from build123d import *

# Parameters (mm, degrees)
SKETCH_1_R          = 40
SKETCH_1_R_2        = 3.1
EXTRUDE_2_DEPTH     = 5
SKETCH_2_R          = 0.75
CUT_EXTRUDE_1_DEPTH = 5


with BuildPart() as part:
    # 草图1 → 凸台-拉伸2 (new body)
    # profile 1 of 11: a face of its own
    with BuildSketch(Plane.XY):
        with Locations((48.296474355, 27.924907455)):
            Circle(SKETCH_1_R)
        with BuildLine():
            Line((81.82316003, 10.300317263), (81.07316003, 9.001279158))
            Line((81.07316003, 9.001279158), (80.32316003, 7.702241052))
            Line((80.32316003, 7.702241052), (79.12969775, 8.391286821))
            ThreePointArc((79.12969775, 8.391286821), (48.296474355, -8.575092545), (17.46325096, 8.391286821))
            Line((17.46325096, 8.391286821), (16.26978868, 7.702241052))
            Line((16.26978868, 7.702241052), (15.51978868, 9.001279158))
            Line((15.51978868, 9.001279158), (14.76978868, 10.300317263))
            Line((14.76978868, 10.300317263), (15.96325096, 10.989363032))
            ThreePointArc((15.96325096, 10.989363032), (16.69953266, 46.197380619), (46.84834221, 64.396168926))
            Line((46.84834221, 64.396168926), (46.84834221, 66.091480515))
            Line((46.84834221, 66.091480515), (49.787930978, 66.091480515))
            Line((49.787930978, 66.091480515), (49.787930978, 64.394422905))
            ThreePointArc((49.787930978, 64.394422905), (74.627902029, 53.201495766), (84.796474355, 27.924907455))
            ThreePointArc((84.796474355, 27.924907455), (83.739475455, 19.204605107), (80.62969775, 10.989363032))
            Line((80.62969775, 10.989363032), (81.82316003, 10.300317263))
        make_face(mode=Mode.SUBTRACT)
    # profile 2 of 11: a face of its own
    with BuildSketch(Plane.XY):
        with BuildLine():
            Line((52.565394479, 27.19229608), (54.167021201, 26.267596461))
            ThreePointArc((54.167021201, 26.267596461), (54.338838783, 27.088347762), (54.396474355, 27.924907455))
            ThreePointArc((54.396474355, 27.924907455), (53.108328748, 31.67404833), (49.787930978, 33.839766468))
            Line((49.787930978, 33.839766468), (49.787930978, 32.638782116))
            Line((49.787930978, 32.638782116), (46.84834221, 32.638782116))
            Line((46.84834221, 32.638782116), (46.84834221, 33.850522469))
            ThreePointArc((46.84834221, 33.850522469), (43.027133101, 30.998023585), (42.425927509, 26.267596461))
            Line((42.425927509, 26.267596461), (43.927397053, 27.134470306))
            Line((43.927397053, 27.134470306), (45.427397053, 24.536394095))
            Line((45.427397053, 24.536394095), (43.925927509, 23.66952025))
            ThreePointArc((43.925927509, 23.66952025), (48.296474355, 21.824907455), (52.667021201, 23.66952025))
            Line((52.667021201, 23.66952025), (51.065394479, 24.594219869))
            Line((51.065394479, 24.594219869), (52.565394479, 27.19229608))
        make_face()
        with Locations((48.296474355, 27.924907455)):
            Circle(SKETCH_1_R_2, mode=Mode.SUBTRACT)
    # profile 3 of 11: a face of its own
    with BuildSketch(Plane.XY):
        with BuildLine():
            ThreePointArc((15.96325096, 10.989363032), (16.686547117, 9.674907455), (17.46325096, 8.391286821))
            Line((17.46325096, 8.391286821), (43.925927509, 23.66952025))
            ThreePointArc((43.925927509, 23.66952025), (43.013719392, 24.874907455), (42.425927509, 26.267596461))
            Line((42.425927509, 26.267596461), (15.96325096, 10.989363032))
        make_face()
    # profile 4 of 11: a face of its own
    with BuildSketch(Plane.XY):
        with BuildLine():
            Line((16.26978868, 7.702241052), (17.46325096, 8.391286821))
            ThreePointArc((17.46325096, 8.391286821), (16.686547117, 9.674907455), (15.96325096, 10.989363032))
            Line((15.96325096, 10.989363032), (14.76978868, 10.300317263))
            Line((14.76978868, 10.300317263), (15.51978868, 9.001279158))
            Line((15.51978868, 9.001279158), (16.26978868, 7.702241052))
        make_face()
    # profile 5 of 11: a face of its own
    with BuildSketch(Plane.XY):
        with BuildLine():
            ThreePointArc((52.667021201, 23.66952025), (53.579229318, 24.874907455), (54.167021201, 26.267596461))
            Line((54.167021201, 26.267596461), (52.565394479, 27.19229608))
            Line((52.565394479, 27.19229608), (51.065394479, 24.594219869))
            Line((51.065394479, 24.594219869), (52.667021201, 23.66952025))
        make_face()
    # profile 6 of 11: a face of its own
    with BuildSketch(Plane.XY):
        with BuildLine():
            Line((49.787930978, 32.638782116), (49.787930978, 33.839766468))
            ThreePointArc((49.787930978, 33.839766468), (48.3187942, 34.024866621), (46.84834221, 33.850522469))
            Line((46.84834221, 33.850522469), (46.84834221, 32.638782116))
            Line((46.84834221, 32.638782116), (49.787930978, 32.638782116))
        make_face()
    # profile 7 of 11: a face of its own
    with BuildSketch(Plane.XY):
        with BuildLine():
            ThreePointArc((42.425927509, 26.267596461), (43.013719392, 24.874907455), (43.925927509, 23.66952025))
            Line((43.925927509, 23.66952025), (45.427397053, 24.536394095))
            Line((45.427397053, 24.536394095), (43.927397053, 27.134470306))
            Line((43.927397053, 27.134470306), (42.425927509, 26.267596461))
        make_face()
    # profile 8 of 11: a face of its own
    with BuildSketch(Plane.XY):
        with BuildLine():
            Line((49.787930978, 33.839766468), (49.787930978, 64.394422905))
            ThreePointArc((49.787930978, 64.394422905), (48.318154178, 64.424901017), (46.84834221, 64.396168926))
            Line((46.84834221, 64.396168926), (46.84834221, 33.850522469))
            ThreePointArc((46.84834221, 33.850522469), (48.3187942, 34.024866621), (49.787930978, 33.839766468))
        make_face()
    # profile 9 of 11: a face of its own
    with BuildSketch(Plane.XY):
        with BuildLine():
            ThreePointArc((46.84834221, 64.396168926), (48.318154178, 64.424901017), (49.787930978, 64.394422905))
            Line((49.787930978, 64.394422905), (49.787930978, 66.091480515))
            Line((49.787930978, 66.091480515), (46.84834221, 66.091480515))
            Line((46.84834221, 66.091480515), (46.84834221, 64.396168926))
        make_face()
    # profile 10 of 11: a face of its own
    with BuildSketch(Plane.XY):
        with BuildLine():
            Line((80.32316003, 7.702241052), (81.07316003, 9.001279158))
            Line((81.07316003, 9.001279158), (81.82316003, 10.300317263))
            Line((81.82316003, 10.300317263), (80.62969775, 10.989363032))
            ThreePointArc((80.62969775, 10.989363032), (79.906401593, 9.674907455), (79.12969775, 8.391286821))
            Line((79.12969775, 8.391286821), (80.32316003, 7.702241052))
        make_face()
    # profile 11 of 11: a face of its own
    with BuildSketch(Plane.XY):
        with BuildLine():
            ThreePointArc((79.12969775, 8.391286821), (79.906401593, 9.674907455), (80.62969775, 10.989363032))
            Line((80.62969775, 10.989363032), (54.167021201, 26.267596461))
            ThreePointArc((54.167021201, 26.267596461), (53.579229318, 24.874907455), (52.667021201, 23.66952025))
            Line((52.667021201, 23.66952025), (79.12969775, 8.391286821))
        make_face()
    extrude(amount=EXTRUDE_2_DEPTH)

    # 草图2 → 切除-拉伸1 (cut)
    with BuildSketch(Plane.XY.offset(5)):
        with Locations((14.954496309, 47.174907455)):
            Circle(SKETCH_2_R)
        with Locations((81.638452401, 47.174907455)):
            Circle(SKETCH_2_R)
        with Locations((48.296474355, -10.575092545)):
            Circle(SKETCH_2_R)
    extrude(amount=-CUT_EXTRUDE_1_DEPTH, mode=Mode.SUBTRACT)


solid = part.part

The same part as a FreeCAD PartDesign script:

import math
import FreeCAD as App
import Part
import Sketcher
from FreeCAD import Vector
Q = App.Units.Quantity

doc = App.newDocument("Part")
body = doc.addObject("PartDesign::Body", "Body")

# Sketch on XY plane
sketch1 = body.newObject("Sketcher::SketchObject", "Sketch")
sketch1.AttachmentSupport = (doc.getObject("XY_Plane"), [""])
sketch1.MapMode = "FlatFace"
sketch1.addGeometry(Part.Circle(Vector(48.3, 27.9, 0), Vector(0, 0, 1), 40), False)
sketch1.addGeometry(Part.ArcOfCircle(Part.Circle(Vector(48.3, 27.9, 0), Vector(0, 0, 1), 36.5), math.radians(-28), math.radians(0)), False)
sketch1.addGeometry(Part.LineSegment(Vector(80.6, 11, 0), Vector(54.2, 26.3, 0)), False)
sketch1.addGeometry(Part.ArcOfCircle(Part.Circle(Vector(48.3, 27.9, 0), Vector(0, 0, 1), 6.1), math.radians(-15.76), math.radians(0)), False)
sketch1.addGeometry(Part.ArcOfCircle(Part.Circle(Vector(48.3, 27.9, 0), Vector(0, 0, 1), 6.1), math.radians(0), math.radians(76)), False)
sketch1.addGeometry(Part.LineSegment(Vector(49.8, 33.8, 0), Vector(49.8, 64.4, 0)), False)
sketch1.addGeometry(Part.ArcOfCircle(Part.Circle(Vector(48.3, 27.9, 0), Vector(0, 0, 1), 36.5), math.radians(0), math.radians(88)), False)
sketch1.addGeometry(Part.ArcOfCircle(Part.Circle(Vector(48.3, 27.9, 0), Vector(0, 0, 1), 36.5), math.radians(92), math.radians(208)), False)
sketch1.addGeometry(Part.LineSegment(Vector(46.8, 64.4, 0), Vector(46.8, 33.9, 0)), False)
sketch1.addGeometry(Part.ArcOfCircle(Part.Circle(Vector(48.3, 27.9, 0), Vector(0, 0, 1), 6.1), math.radians(104), math.radians(196)), False)
sketch1.addGeometry(Part.LineSegment(Vector(42.4, 26.3, 0), Vector(16, 11, 0)), False)
sketch1.addGeometry(Part.ArcOfCircle(Part.Circle(Vector(48.3, 27.9, 0), Vector(0, 0, 1), 36.5), math.radians(-148), math.radians(-32)), False)
sketch1.addGeometry(Part.LineSegment(Vector(17.5, 8.4, 0), Vector(43.9, 23.7, 0)), False)
sketch1.addGeometry(Part.ArcOfCircle(Part.Circle(Vector(48.3, 27.9, 0), Vector(0, 0, 1), 6.1), math.radians(-136), math.radians(-44)), False)
sketch1.addGeometry(Part.LineSegment(Vector(52.7, 23.7, 0), Vector(79.1, 8.4, 0)), False)
sketch1.addGeometry(Part.Circle(Vector(48.3, 27.9, 0), Vector(0, 0, 1), 3.1), False)
sketch1.addConstraint(Sketcher.Constraint("Coincident", 1, 1, 2, 1))
sketch1.addConstraint(Sketcher.Constraint("Coincident", 2, 2, 3, 1))
sketch1.addConstraint(Sketcher.Constraint("Tangent", 3, 2, 4, 1))
sketch1.addConstraint(Sketcher.Constraint("Coincident", 4, 2, 5, 1))
sketch1.addConstraint(Sketcher.Constraint("Coincident", 5, 2, 6, 2))
sketch1.addConstraint(Sketcher.Constraint("Tangent", 6, 1, 1, 2))
sketch1.addConstraint(Sketcher.Constraint("Coincident", 7, 1, 8, 1))
sketch1.addConstraint(Sketcher.Constraint("Coincident", 8, 2, 9, 1))
sketch1.addConstraint(Sketcher.Constraint("Coincident", 9, 2, 10, 1))
sketch1.addConstraint(Sketcher.Constraint("Coincident", 10, 2, 7, 2))
sketch1.addConstraint(Sketcher.Constraint("Coincident", 11, 1, 12, 1))
sketch1.addConstraint(Sketcher.Constraint("Coincident", 12, 2, 13, 1))
sketch1.addConstraint(Sketcher.Constraint("Coincident", 13, 2, 14, 1))
sketch1.addConstraint(Sketcher.Constraint("Coincident", 14, 2, 11, 2))
sketch1.addConstraint(Sketcher.Constraint("Vertical", 5))
sketch1.addConstraint(Sketcher.Constraint("Vertical", 8))
sketch1.addConstraint(Sketcher.Constraint("Coincident", 1, 3, 0, 3))
sketch1.addConstraint(Sketcher.Constraint("Coincident", 3, 3, 0, 3))
sketch1.addConstraint(Sketcher.Constraint("Coincident", 7, 3, 0, 3))
sketch1.addConstraint(Sketcher.Constraint("Coincident", 9, 3, 0, 3))
sketch1.addConstraint(Sketcher.Constraint("Coincident", 11, 3, 0, 3))
sketch1.addConstraint(Sketcher.Constraint("Coincident", 13, 3, 0, 3))
sketch1.addConstraint(Sketcher.Constraint("Coincident", 15, 3, 0, 3))
sketch1.addConstraint(Sketcher.Constraint("Equal", 3, 4))
sketch1.addConstraint(Sketcher.Constraint("Equal", 1, 6))
sketch1.addConstraint(Sketcher.Constraint("Equal", 6, 7))
sketch1.addConstraint(Sketcher.Constraint("Equal", 4, 9))
sketch1.addConstraint(Sketcher.Constraint("Equal", 7, 11))
sketch1.addConstraint(Sketcher.Constraint("Equal", 9, 13))
sketch1.addConstraint(Sketcher.Constraint("Parallel", 10, 12))
sketch1.addConstraint(Sketcher.Constraint("Parallel", 2, 14))
sketch1.addConstraint(Sketcher.Constraint("Horizontal", 15, 3, 3, 2))
sketch1.addConstraint(Sketcher.Constraint("Horizontal", 3, 2, 6, 1))
sketch1.addConstraint(Sketcher.Constraint("Horizontal", 2, 2, 9, 2))
sketch1.addConstraint(Sketcher.Constraint("Horizontal", 1, 1, 10, 2))
sketch1.addConstraint(Sketcher.Constraint("Horizontal", 12, 2, 13, 2))
sketch1.addConstraint(Sketcher.Constraint("Equal", 10, 12))
sketch1.addConstraint(Sketcher.Constraint("Diameter", 0, 80.0))
sketch1.addConstraint(Sketcher.Constraint("Diameter", 15, 6.2))
sketch1.addConstraint(Sketcher.Constraint("Radius", 1, 36.5))
sketch1.addConstraint(Sketcher.Constraint("Radius", 3, 6.1))
sketch1.addConstraint(Sketcher.Constraint("Angle", 2, Q("150 deg")))
sketch1.addConstraint(Sketcher.Constraint("DistanceX", 10, 2, 11, 1, 1.5))
sketch1.addConstraint(Sketcher.Constraint("DistanceY", 5, 1, 5, 2, 30.554656))
sketch1.addConstraint(Sketcher.Constraint("DistanceY", 8, 2, 8, 1, 30.545646))
sketch1.addConstraint(Sketcher.Constraint("DistanceX", -1, 1, 2, 2, 54.167021))
sketch1.addConstraint(Sketcher.Constraint("DistanceY", -1, 1, 7, 1, 64.396169))
pad1 = body.newObject("PartDesign::Pad", "Pad")
pad1.Profile = sketch1
pad1.Length = 5

# Sketch on XY plane
sketch2 = body.newObject("Sketcher::SketchObject", "Sketch001")
sketch2.AttachmentSupport = (doc.getObject("XY_Plane"), [""])
sketch2.MapMode = "FlatFace"
sketch2.AttachmentOffset = App.Placement(Vector(0, 0, 5), App.Rotation())
sketch2.addGeometry(Part.Circle(Vector(15, 47.2, 0), Vector(0, 0, 1), 0.8), False)
sketch2.addGeometry(Part.Circle(Vector(81.6, 47.2, 0), Vector(0, 0, 1), 0.8), False)
sketch2.addGeometry(Part.Circle(Vector(48.3, -10.6, 0), Vector(0, 0, 1), 0.8), False)
sketch2.addConstraint(Sketcher.Constraint("Equal", 0, 1))
sketch2.addConstraint(Sketcher.Constraint("Equal", 1, 2))
sketch2.addConstraint(Sketcher.Constraint("Horizontal", 0, 3, 1, 3))
sketch2.addConstraint(Sketcher.Constraint("Diameter", 0, 1.5))
sketch2.addConstraint(Sketcher.Constraint("DistanceY", 2, 3, 1, 3, 57.75))
sketch2.addConstraint(Sketcher.Constraint("DistanceX", 2, 3, 1, 3, 33.341978))
sketch2.addConstraint(Sketcher.Constraint("DistanceX", 0, 3, 2, 3, 33.341978))
sketch2.addConstraint(Sketcher.Constraint("DistanceX", -1, 1, 0, 3, 14.954496))
sketch2.addConstraint(Sketcher.Constraint("DistanceY", -1, 1, 0, 3, 47.174907))
pocket1 = body.newObject("PartDesign::Pocket", "Pocket")
pocket1.Profile = sketch2
pocket1.Length = 5

doc.recompute()
